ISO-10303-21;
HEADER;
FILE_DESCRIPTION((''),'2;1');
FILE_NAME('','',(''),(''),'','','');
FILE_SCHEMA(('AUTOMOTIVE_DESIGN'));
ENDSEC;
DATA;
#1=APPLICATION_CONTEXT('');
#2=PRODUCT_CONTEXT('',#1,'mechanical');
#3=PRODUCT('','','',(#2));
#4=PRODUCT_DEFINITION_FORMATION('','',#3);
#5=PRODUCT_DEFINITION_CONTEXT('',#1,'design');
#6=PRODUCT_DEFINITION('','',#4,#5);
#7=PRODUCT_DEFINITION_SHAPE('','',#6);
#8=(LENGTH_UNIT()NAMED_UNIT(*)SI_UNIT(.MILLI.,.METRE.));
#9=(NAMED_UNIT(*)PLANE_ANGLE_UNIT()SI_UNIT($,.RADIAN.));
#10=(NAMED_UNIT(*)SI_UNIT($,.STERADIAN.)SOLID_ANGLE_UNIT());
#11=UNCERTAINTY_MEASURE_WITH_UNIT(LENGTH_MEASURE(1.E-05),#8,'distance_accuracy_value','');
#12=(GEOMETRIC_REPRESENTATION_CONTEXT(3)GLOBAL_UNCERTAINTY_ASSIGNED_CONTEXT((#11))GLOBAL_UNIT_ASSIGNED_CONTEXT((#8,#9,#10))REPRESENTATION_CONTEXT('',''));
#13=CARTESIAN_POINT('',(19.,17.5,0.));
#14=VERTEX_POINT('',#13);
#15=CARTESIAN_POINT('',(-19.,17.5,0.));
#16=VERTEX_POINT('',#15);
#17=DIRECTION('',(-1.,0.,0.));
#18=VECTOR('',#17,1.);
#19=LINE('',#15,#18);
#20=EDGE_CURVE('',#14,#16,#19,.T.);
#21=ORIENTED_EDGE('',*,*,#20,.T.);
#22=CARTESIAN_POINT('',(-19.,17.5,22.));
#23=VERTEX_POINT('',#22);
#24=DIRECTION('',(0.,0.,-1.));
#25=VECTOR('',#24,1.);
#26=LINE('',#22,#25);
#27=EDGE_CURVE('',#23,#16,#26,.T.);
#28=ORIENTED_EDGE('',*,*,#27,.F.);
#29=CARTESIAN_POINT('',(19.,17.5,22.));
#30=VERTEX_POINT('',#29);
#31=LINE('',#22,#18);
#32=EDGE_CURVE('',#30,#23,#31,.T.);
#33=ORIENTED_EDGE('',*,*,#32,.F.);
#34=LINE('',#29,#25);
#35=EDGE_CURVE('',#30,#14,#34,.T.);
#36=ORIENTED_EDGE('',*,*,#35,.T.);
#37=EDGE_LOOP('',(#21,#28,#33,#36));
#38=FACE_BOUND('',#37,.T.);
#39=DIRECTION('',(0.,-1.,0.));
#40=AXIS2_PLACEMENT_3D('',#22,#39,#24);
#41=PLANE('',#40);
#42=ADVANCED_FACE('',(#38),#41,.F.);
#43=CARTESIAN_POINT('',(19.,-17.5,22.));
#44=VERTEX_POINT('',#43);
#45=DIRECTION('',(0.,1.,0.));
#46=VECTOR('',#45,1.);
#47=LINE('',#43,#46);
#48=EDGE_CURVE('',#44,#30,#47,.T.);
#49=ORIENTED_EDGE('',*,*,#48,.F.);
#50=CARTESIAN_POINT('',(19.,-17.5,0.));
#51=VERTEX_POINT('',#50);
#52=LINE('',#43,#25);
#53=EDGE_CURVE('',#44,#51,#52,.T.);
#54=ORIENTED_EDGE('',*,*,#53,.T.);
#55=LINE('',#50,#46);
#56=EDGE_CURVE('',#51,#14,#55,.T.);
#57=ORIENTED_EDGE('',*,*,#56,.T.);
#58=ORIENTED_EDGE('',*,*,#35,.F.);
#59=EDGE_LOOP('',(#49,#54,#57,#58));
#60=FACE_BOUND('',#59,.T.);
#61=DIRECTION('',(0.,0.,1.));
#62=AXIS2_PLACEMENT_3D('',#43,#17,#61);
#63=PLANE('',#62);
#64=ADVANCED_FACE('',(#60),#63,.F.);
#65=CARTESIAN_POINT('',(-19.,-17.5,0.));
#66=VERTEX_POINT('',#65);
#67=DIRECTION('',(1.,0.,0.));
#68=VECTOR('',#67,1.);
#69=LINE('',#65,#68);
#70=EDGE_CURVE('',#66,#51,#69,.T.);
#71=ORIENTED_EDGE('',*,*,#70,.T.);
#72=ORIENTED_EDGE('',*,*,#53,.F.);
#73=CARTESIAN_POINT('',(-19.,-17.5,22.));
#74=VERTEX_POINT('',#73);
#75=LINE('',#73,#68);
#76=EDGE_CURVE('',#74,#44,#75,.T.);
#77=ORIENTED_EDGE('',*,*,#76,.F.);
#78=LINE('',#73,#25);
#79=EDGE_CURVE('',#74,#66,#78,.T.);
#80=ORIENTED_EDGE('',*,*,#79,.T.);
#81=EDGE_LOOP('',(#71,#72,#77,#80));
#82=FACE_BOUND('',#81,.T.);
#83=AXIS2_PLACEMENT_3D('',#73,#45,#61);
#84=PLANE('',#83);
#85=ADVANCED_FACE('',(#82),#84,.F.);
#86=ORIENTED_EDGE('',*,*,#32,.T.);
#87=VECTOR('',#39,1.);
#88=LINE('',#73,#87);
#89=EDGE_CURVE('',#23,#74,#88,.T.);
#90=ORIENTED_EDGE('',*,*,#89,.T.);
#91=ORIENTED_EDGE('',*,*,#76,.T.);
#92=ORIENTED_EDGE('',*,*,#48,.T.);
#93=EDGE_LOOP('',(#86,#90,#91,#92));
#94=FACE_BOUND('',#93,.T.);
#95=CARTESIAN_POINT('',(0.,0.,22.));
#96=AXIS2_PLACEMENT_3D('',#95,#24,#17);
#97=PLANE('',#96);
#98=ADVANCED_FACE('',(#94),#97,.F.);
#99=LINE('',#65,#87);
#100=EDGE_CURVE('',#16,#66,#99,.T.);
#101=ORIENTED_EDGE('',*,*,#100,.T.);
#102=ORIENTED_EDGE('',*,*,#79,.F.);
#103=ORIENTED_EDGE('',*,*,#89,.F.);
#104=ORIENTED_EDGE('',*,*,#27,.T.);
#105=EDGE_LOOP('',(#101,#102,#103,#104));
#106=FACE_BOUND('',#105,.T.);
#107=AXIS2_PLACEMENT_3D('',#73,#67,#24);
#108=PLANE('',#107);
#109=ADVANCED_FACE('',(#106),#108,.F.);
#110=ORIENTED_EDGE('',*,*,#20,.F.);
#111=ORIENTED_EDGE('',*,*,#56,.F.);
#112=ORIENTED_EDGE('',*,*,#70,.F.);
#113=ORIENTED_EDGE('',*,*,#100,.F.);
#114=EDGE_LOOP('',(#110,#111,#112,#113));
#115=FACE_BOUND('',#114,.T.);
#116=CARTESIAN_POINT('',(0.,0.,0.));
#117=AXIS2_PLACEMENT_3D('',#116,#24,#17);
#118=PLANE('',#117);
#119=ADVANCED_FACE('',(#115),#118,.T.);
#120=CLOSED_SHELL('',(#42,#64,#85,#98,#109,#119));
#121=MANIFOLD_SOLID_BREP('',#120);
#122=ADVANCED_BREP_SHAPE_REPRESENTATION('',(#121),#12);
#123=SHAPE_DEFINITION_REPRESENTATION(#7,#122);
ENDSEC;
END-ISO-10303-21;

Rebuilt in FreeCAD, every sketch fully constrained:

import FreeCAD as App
import Part
import Sketcher

doc = App.newDocument("Part")
body = doc.addObject("PartDesign::Body", "Body")

sketch1 = body.newObject("Sketcher::SketchObject", "Sketch")
sketch1.AttachmentSupport = (doc.getObject("XY_Plane"), [""])
sketch1.MapMode = "FlatFace"
sketch1.addGeometry([
    Part.LineSegment(App.Vector(-19, 18, 0), App.Vector(-19, -18, 0)),
    Part.LineSegment(App.Vector(-19, -18, 0), App.Vector(19, -18, 0)),
    Part.LineSegment(App.Vector(19, -18, 0), App.Vector(19, 18, 0)),
    Part.LineSegment(App.Vector(19, 18, 0), App.Vector(-19, 18, 0)),
], False)
sketch1.addConstraint([
    Sketcher.Constraint("Coincident", 0, 2, 1, 1),
    Sketcher.Constraint("Coincident", 1, 2, 2, 1),
    Sketcher.Constraint("Coincident", 2, 2, 3, 1),
    Sketcher.Constraint("Coincident", 3, 2, 0, 1),
    Sketcher.Constraint("Vertical", 0),
    Sketcher.Constraint("Horizontal", 1),
    Sketcher.Constraint("Vertical", 2),
    Sketcher.Constraint("Horizontal", 3),
    Sketcher.Constraint("Symmetric", 0, 2, 2, 2, -1, 1),
    Sketcher.Constraint("DistanceX", 1, 1, 1, 2, 38.0),
    Sketcher.Constraint("DistanceY", 0, 2, 0, 1, 35.0),
])
pad1 = body.newObject("PartDesign::Pad", "Pad")
pad1.Profile = sketch1
pad1.Length = 22

doc.recompute()
